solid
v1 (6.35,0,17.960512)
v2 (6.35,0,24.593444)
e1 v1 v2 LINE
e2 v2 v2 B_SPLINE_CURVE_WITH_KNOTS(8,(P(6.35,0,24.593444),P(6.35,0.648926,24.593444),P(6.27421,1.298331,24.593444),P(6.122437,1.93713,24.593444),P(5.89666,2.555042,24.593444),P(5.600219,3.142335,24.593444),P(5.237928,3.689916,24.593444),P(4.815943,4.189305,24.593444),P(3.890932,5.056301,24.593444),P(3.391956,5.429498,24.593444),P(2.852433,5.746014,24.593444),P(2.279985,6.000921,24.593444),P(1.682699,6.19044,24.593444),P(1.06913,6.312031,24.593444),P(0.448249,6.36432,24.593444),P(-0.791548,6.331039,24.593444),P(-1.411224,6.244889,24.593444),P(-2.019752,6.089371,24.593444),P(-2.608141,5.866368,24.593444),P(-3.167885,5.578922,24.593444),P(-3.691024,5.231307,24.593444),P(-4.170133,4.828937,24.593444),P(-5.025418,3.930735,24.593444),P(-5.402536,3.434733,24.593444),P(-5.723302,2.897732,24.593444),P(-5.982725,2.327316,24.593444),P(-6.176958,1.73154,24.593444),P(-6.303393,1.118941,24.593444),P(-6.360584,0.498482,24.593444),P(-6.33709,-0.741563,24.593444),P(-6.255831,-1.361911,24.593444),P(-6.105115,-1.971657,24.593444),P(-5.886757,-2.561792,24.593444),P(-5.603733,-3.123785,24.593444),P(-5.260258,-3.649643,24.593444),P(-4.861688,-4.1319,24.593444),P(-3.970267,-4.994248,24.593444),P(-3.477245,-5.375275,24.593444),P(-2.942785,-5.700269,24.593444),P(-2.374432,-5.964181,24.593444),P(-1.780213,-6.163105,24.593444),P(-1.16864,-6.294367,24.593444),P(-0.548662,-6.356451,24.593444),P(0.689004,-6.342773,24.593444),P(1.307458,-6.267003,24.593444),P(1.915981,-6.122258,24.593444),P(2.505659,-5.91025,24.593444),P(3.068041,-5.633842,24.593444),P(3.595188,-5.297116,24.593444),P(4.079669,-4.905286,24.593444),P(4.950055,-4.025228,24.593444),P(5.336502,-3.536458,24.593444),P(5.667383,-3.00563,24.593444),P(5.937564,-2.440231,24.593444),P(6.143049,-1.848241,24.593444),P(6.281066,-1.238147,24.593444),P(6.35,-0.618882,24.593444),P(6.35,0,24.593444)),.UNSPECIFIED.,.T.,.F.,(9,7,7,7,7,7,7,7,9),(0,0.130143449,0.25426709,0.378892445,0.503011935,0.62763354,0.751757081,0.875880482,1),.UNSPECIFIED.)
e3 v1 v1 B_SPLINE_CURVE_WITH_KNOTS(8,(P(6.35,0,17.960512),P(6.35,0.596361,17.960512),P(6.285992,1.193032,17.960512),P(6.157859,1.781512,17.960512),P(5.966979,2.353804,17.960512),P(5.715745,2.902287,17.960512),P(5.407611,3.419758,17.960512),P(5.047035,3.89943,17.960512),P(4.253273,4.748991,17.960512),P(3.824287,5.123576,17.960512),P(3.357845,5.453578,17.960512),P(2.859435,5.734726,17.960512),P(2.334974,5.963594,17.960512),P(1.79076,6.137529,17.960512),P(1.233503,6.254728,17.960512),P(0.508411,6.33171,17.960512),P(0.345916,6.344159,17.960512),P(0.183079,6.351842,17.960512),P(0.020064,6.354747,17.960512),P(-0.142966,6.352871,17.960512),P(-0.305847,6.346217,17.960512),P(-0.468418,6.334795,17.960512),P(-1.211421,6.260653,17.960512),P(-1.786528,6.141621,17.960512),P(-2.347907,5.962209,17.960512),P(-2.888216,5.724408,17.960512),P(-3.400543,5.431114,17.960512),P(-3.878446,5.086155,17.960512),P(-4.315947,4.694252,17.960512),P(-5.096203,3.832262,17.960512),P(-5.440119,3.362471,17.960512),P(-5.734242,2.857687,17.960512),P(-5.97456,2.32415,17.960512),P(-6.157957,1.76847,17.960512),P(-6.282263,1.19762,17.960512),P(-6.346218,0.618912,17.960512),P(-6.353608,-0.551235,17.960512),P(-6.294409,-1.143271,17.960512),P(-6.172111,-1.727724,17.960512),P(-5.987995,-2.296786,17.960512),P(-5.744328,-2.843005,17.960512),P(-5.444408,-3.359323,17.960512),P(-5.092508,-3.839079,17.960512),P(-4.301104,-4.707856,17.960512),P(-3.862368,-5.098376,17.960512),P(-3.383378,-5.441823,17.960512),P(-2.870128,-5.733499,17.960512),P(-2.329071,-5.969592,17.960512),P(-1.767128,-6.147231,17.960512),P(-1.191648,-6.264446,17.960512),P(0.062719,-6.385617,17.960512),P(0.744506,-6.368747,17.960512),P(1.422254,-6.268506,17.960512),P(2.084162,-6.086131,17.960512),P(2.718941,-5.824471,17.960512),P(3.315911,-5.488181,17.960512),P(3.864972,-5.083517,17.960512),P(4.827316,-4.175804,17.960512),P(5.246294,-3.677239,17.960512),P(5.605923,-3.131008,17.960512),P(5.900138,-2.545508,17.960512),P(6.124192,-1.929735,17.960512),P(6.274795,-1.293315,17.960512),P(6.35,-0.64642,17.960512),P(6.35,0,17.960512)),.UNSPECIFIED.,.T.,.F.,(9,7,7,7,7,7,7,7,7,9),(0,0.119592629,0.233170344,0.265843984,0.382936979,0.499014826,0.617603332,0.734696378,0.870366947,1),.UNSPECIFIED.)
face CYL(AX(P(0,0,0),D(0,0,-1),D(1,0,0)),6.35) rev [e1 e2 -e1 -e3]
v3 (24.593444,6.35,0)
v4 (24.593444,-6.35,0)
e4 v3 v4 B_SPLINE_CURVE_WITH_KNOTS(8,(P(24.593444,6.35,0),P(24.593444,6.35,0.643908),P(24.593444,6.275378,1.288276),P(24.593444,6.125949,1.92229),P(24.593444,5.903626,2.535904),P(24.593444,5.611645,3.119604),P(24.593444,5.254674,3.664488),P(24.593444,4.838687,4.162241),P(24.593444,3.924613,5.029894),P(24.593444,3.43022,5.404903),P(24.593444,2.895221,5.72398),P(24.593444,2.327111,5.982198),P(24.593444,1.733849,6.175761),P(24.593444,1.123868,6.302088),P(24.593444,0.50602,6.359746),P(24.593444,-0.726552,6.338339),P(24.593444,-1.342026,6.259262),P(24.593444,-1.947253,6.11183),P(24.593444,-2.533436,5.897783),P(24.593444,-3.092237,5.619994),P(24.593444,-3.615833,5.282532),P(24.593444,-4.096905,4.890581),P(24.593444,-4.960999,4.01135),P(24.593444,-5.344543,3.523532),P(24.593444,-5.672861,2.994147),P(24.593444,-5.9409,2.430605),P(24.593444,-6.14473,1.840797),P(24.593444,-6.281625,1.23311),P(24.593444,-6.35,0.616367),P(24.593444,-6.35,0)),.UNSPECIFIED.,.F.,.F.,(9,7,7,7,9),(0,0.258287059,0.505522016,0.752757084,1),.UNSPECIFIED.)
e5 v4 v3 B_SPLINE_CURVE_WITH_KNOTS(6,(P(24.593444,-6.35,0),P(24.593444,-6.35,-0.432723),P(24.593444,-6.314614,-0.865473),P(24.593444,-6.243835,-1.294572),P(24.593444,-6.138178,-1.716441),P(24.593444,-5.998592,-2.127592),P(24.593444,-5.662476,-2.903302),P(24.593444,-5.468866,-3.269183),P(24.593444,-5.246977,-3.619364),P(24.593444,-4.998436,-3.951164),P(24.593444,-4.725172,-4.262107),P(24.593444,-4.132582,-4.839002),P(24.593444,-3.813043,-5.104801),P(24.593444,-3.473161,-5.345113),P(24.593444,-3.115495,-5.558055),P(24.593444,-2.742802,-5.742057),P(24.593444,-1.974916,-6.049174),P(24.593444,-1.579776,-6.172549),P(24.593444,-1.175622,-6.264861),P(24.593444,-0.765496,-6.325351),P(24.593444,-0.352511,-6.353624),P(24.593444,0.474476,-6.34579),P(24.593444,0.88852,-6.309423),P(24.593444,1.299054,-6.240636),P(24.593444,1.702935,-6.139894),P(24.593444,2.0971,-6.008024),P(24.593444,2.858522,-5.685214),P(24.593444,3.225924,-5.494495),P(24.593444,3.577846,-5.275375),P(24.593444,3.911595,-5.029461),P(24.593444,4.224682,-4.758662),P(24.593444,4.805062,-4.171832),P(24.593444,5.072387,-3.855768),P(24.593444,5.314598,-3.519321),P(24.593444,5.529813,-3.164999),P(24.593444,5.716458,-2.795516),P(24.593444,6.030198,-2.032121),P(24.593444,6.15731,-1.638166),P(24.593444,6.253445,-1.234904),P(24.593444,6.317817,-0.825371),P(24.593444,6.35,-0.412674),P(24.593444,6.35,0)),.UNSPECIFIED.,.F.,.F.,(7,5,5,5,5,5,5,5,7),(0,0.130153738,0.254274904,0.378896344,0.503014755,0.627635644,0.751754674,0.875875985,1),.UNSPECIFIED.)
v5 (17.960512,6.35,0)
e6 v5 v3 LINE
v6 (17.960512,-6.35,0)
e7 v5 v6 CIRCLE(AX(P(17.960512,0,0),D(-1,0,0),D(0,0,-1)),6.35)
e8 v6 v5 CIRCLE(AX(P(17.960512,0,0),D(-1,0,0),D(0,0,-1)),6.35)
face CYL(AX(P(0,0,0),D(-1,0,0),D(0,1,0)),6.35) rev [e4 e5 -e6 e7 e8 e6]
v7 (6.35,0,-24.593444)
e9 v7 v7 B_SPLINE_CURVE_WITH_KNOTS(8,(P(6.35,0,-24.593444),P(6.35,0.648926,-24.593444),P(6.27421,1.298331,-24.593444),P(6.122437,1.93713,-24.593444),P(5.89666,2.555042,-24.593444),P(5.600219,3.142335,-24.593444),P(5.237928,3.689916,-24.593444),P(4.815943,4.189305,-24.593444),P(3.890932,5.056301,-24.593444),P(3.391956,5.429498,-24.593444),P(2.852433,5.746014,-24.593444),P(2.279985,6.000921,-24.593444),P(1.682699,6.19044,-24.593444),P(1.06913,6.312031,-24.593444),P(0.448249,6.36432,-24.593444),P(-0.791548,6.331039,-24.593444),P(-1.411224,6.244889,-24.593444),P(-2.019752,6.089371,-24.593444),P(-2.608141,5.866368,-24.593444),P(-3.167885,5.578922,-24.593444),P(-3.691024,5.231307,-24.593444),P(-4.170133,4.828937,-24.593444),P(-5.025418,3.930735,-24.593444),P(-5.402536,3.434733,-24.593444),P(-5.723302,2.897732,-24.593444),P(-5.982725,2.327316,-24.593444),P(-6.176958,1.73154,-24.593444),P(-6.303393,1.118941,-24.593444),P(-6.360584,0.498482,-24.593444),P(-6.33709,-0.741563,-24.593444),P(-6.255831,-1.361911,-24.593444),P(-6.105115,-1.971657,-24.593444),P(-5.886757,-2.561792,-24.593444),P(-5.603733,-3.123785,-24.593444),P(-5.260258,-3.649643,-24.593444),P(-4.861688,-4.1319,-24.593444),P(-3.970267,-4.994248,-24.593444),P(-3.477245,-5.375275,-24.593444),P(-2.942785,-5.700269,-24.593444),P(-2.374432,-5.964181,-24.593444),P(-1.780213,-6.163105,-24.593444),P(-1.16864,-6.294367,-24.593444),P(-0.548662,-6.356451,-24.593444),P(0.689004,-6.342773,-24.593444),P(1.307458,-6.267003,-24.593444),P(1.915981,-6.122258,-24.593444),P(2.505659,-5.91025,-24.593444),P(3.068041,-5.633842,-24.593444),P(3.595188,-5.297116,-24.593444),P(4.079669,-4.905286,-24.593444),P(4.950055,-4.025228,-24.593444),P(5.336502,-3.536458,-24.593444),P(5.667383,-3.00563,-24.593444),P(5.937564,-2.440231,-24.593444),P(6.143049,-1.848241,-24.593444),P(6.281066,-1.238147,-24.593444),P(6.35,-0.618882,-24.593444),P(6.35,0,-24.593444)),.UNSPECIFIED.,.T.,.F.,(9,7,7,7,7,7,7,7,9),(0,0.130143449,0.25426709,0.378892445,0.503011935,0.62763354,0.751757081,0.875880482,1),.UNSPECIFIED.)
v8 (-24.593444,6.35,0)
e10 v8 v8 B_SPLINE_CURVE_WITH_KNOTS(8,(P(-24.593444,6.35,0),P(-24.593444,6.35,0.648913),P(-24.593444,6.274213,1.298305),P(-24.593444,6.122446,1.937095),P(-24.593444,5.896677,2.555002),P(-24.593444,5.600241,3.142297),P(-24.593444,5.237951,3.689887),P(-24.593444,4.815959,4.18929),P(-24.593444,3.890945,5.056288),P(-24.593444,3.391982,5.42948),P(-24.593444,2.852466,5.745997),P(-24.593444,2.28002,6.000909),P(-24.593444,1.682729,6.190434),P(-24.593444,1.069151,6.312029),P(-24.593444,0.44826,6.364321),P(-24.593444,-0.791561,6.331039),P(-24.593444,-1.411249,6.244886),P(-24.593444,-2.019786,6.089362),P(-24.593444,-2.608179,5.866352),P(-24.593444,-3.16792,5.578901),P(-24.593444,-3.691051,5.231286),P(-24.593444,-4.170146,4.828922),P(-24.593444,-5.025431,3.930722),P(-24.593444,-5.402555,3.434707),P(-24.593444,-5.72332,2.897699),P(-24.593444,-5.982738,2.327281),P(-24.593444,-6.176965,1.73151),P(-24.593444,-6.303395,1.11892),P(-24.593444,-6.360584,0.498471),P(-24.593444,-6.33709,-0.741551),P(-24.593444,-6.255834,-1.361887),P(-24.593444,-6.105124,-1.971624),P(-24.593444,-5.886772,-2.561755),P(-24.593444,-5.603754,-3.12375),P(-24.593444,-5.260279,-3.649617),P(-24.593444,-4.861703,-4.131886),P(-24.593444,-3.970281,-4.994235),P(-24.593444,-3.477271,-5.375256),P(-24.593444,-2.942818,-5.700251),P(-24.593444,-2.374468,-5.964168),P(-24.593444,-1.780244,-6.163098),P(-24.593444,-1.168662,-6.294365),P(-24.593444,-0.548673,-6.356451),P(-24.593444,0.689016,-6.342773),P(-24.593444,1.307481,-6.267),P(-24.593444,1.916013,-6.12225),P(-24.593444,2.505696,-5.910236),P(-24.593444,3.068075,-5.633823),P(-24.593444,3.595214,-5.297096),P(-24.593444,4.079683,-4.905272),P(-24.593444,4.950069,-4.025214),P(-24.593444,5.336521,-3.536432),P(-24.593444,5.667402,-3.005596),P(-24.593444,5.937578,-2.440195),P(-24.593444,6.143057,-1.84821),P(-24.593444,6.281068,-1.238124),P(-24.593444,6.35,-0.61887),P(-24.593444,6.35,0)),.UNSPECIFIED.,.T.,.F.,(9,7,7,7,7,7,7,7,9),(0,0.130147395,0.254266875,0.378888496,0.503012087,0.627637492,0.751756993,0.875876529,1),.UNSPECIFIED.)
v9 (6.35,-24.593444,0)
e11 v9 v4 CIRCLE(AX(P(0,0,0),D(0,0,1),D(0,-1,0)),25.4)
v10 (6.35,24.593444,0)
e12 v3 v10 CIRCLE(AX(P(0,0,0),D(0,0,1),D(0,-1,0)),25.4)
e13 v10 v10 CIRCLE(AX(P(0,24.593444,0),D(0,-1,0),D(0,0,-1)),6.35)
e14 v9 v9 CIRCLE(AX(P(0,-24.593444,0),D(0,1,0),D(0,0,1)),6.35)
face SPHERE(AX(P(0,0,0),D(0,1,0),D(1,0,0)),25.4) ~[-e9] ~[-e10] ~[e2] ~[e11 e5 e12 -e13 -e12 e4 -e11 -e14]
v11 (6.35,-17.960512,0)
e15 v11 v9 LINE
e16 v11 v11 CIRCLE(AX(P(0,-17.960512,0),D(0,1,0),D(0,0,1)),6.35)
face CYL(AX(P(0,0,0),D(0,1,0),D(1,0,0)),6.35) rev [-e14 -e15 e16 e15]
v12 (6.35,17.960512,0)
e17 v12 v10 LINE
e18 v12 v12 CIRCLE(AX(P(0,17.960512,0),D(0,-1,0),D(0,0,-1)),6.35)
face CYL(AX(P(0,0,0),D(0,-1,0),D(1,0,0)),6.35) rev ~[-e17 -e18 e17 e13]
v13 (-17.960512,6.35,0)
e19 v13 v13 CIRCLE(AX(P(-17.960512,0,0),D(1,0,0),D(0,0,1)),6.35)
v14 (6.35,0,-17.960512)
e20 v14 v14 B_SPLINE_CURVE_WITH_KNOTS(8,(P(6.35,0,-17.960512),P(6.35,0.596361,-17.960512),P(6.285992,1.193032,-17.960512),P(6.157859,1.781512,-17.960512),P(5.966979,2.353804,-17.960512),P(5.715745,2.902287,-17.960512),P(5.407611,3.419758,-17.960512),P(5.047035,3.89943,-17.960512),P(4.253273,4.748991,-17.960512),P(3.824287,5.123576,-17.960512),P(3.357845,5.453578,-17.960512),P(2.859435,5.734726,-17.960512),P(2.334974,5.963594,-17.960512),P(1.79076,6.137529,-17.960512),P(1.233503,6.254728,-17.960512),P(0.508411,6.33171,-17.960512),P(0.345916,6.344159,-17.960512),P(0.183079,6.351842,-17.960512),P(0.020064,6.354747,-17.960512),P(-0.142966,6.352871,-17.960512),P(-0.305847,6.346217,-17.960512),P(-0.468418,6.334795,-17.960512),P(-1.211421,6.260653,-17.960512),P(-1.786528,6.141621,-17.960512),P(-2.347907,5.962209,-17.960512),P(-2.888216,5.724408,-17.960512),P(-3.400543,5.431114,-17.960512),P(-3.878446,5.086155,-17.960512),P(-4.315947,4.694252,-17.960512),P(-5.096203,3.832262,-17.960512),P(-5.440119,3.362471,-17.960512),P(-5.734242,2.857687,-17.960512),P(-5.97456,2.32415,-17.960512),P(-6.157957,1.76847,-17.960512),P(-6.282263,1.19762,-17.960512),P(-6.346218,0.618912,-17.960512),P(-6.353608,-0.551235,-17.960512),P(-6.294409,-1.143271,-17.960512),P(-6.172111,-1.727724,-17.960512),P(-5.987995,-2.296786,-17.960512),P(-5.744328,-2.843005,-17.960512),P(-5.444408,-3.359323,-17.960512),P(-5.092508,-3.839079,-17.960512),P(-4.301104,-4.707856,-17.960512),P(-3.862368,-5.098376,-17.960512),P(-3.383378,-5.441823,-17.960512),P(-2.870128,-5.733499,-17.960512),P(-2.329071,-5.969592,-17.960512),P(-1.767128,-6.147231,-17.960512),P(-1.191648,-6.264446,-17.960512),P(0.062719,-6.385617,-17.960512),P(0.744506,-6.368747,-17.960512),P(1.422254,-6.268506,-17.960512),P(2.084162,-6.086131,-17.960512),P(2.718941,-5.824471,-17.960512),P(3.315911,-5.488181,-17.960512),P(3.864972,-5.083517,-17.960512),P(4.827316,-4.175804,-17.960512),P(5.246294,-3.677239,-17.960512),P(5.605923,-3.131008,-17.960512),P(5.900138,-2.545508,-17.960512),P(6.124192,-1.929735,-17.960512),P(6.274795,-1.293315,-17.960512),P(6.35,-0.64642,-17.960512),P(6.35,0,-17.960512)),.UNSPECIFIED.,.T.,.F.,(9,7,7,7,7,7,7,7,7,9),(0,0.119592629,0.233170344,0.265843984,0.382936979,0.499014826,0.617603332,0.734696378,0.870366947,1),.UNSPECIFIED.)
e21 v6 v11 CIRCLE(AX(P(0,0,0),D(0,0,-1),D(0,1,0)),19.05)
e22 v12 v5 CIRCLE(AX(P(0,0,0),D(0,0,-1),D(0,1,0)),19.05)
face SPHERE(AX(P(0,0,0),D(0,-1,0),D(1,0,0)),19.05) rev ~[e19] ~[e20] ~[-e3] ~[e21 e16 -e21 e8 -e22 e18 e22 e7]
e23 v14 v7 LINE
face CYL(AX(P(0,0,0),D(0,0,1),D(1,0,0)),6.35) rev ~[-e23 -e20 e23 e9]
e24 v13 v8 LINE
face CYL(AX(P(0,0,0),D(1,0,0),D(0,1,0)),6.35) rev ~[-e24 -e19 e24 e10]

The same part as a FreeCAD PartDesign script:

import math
import FreeCAD as App
import Part
import Sketcher
Q = App.Units.Quantity

doc = App.newDocument("Part")
body = doc.addObject("PartDesign::Body", "Body")

# Sketch on XY plane
sketch1 = body.newObject("Sketcher::SketchObject", "Sketch")
sketch1.AttachmentSupport = (doc.getObject("XY_Plane"), [""])
sketch1.MapMode = "FlatFace"
sketch1.addGeometry(Part.LineSegment(App.Vector(0, -19, 0), App.Vector(0, -25, 0)), False)
sketch1.addGeometry(Part.ArcOfCircle(Part.Circle(App.Vector(0, 0, 0), App.Vector(0, 0, 1), 25), math.radians(-90), math.radians(90)), False)
sketch1.addGeometry(Part.LineSegment(App.Vector(0, 25, 0), App.Vector(0, 19, 0)), False)
sketch1.addGeometry(Part.ArcOfCircle(Part.Circle(App.Vector(0, 0, 0), App.Vector(0, 0, 1), 19), math.radians(-90), math.radians(90)), False)
sketch1.addConstraint(Sketcher.Constraint("Coincident", 0, 2, 1, 1))
sketch1.addConstraint(Sketcher.Constraint("Coincident", 1, 2, 2, 1))
sketch1.addConstraint(Sketcher.Constraint("Coincident", 2, 2, 3, 2))
sketch1.addConstraint(Sketcher.Constraint("Coincident", 3, 1, 0, 1))
sketch1.addConstraint(Sketcher.Constraint("Vertical", 0))
sketch1.addConstraint(Sketcher.Constraint("Vertical", 2))
sketch1.addConstraint(Sketcher.Constraint("Coincident", 1, 3, -1, 1))
sketch1.addConstraint(Sketcher.Constraint("Coincident", 3, 3, -1, 1))
sketch1.addConstraint(Sketcher.Constraint("PointOnObject", 0, 2, -2))
sketch1.addConstraint(Sketcher.Constraint("PointOnObject", 1, 2, -2))
sketch1.addConstraint(Sketcher.Constraint("Radius", 1, Q("1 in")))
sketch1.addConstraint(Sketcher.Constraint("Radius", 3, Q("0.75 in")))
revolution = body.newObject("PartDesign::Revolution", "Revolution")
revolution.Profile = sketch1
revolution.ReferenceAxis = (sketch1, ["V_Axis"])
revolution.Angle = 360

# Sketch on XY plane
sketch2 = body.newObject("Sketcher::SketchObject", "Sketch001")
sketch2.AttachmentSupport = (doc.getObject("XY_Plane"), [""])
sketch2.MapMode = "FlatFace"
sketch2.addGeometry(Part.Circle(App.Vector(0, 0, 0), App.Vector(0, 0, 1), 6), False)
sketch2.addConstraint(Sketcher.Constraint("Coincident", 0, 3, -1, 1))
sketch2.addConstraint(Sketcher.Constraint("Diameter", 0, Q("0.5 in")))
pocket1 = body.newObject("PartDesign::Pocket", "Pocket")
pocket1.Profile = sketch2
pocket1.Length = Q("2.33 in")

# Sketch on YZ plane
sketch3 = body.newObject("Sketcher::SketchObject", "Sketch002")
sketch3.AttachmentSupport = (doc.getObject("YZ_Plane"), [""])
sketch3.MapMode = "FlatFace"
sketch3.addGeometry(Part.Circle(App.Vector(0, 0, 0), App.Vector(0, 0, 1), 6), False)
sketch3.addConstraint(Sketcher.Constraint("Coincident", 0, 3, -1, 1))
sketch3.addConstraint(Sketcher.Constraint("Diameter", 0, Q("0.5 in")))
pocket2 = body.newObject("PartDesign::Pocket", "Pocket001")
pocket2.Profile = sketch3
pocket2.Length = Q("1 in")

# Sketch on XZ plane
sketch4 = body.newObject("Sketcher::SketchObject", "Sketch003")
sketch4.AttachmentSupport = (doc.getObject("XZ_Plane"), [""])
sketch4.MapMode = "FlatFace"
sketch4.addGeometry(Part.Circle(App.Vector(0, 0, 0), App.Vector(0, 0, 1), 6), False)
sketch4.addConstraint(Sketcher.Constraint("Coincident", 0, 3, -1, 1))
sketch4.addConstraint(Sketcher.Constraint("Diameter", 0, Q("0.5 in")))
pocket3 = body.newObject("PartDesign::Pocket", "Pocket002")
pocket3.Profile = sketch4
pocket3.Length = Q("1 in")

# Sketch on YZ plane
sketch5 = body.newObject("Sketcher::SketchObject", "Sketch004")
sketch5.AttachmentSupport = (doc.getObject("YZ_Plane"), [""])
sketch5.MapMode = "FlatFace"
sketch5.addGeometry(Part.Circle(App.Vector(0, 0, 0), App.Vector(0, 0, 1), 6), False)
sketch5.addConstraint(Sketcher.Constraint("Coincident", 0, 3, -1, 1))
sketch5.addConstraint(Sketcher.Constraint("Diameter", 0, Q("0.5 in")))
pocket4 = body.newObject("PartDesign::Pocket", "Pocket003")
pocket4.Profile = sketch5
pocket4.Length = Q("1.54 in")
pocket4.Reversed = True

# Sketch on XZ plane
sketch6 = body.newObject("Sketcher::SketchObject", "Sketch005")
sketch6.AttachmentSupport = (doc.getObject("XZ_Plane"), [""])
sketch6.MapMode = "FlatFace"
sketch6.addGeometry(Part.Circle(App.Vector(0, 0, 0), App.Vector(0, 0, 1), 6), False)
sketch6.addConstraint(Sketcher.Constraint("Coincident", 0, 3, -1, 1))
sketch6.addConstraint(Sketcher.Constraint("Diameter", 0, Q("0.5 in")))
pocket5 = body.newObject("PartDesign::Pocket", "Pocket004")
pocket5.Profile = sketch6
pocket5.Length = Q("1.75 in")
pocket5.Reversed = True

# Sketch on XY plane
sketch7 = body.newObject("Sketcher::SketchObject", "Sketch006")
sketch7.AttachmentSupport = (doc.getObject("XY_Plane"), [""])
sketch7.MapMode = "FlatFace"
sketch7.addGeometry(Part.Circle(App.Vector(0, 0, 0), App.Vector(0, 0, 1), 6), False)
sketch7.addConstraint(Sketcher.Constraint("Coincident", 0, 3, -1, 1))
sketch7.addConstraint(Sketcher.Constraint("Diameter", 0, Q("0.5 in")))
pocket6 = body.newObject("PartDesign::Pocket", "Pocket005")
pocket6.Profile = sketch7
pocket6.Length = Q("1.62 in")
pocket6.Reversed = True

doc.recompute()
